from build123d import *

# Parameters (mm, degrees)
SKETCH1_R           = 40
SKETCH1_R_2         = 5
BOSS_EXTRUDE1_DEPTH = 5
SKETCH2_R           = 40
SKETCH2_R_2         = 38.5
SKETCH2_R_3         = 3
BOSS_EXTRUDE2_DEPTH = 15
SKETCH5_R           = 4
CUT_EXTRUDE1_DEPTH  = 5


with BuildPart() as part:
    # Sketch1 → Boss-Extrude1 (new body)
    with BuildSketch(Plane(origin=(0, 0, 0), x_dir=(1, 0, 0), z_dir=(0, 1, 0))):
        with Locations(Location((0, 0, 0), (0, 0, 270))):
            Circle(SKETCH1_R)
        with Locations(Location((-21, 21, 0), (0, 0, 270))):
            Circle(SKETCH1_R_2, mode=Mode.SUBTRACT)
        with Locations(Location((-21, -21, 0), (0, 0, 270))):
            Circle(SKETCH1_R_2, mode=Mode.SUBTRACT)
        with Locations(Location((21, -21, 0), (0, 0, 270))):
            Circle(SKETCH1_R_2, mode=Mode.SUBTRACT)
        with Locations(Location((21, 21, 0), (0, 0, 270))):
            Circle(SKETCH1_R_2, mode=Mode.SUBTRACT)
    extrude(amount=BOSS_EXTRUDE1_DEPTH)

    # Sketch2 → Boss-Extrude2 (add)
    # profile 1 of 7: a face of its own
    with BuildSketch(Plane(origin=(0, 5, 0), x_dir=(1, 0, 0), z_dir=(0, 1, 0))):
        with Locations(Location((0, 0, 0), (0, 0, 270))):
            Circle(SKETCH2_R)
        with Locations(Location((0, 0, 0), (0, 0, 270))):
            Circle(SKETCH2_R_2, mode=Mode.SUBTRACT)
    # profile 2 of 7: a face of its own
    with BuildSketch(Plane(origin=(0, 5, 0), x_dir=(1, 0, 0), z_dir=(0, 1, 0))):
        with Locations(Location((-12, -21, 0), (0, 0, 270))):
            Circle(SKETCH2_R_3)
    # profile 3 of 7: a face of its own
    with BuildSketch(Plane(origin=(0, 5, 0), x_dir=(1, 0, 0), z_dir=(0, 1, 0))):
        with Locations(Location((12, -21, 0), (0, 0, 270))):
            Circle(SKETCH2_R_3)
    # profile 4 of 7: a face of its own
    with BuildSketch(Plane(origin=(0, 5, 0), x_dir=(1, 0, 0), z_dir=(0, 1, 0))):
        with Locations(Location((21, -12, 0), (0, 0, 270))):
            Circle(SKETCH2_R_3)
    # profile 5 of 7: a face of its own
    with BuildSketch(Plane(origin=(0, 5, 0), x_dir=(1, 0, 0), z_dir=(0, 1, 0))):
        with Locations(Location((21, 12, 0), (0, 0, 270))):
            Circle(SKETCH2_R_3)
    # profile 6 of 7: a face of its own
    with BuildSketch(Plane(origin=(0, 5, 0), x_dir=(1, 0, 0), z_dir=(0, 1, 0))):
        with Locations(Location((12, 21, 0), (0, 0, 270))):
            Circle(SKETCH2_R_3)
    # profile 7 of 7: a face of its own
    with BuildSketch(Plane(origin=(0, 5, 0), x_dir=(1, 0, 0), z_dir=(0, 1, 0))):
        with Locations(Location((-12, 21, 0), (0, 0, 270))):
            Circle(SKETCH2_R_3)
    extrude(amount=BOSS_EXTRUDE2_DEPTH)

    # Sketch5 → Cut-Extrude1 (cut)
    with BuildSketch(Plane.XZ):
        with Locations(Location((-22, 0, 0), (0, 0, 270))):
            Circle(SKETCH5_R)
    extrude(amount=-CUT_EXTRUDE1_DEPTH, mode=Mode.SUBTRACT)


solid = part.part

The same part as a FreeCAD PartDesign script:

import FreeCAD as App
import Part
import Sketcher
from FreeCAD import Vector

doc = App.newDocument("Part")
body = doc.addObject("PartDesign::Body", "Body")

# Sketch on XZ plane
sketch1 = doc.addObject("Sketcher::SketchObject", "Sketch")
body.addObject(sketch1)
sketch1.AttachmentSupport = (doc.XZ_Plane, [""])
sketch1.MapMode = "FlatFace"
sketch1.addGeometry([
    Part.Circle(Vector(0, 0, 0), Vector(0, 0, 1), 40),  # 0
    Part.Circle(Vector(-21, -21, 0), Vector(0, 0, 1), 5),  # 1
    Part.Circle(Vector(-21, 21, 0), Vector(0, 0, 1), 5),  # 2
    Part.Circle(Vector(21, -21, 0), Vector(0, 0, 1), 5),  # 3
    Part.Circle(Vector(21, 21, 0), Vector(0, 0, 1), 5),  # 4
], False)
sketch1.addConstraint([
    Sketcher.Constraint("Coincident", 0, 3, -1, 1),
    Sketcher.Constraint("Equal", 1, 2),
    Sketcher.Constraint("Equal", 2, 3),
    Sketcher.Constraint("Equal", 3, 4),
    Sketcher.Constraint("Symmetric", 2, 3, 3, 3, -1, 1),
    Sketcher.Constraint("Symmetric", 1, 3, 4, 3, -1, 1),
    Sketcher.Constraint("Symmetric", 1, 3, 3, 3, -2),
    Sketcher.Constraint("Diameter", 0, 80.0),
    Sketcher.Constraint("Diameter", 1, 10.0),
    Sketcher.Constraint("DistanceX", 1, 3, -1, 1, 21.0),
    Sketcher.Constraint("DistanceY", 1, 3, -1, 1, 21.0),
])
pad1 = doc.addObject("PartDesign::Pad", "Pad")
body.addObject(pad1)
pad1.Profile = sketch1
pad1.Length = 5
pad1.Reversed = True

# Sketch on XZ plane
sketch2 = doc.addObject("Sketcher::SketchObject", "Sketch001")
body.addObject(sketch2)
sketch2.AttachmentSupport = (doc.XZ_Plane, [""])
sketch2.MapMode = "FlatFace"
sketch2.AttachmentOffset = App.Placement(Vector(0, 0, -5), App.Rotation())
sketch2.addGeometry([
    Part.Circle(Vector(0, 0, 0), Vector(0, 0, 1), 40),  # 0
    Part.Circle(Vector(0, 0, 0), Vector(0, 0, 1), 38.5),  # 1
    Part.Circle(Vector(-12, 21, 0), Vector(0, 0, 1), 3),  # 2
    Part.Circle(Vector(12, 21, 0), Vector(0, 0, 1), 3),  # 3
    Part.Circle(Vector(21, 12, 0), Vector(0, 0, 1), 3),  # 4
    Part.Circle(Vector(21, -12, 0), Vector(0, 0, 1), 3),  # 5
    Part.Circle(Vector(12, -21, 0), Vector(0, 0, 1), 3),  # 6
    Part.Circle(Vector(-12, -21, 0), Vector(0, 0, 1), 3),  # 7
], False)
sketch2.addConstraint([
    Sketcher.Constraint("Coincident", 0, 3, -1, 1),
    Sketcher.Constraint("Coincident", 1, 3, -1, 1),
    Sketcher.Constraint("Equal", 2, 3),
    Sketcher.Constraint("Equal", 3, 4),
    Sketcher.Constraint("Equal", 4, 5),
    Sketcher.Constraint("Equal", 5, 6),
    Sketcher.Constraint("Equal", 6, 7),
    Sketcher.Constraint("Symmetric", 2, 3, 6, 3, -1, 1),
    Sketcher.Constraint("Symmetric", 3, 3, 7, 3, -1, 1),
    Sketcher.Constraint("Symmetric", 2, 3, 3, 3, -2),
    Sketcher.Constraint("Symmetric", 4, 3, 5, 3, -1),
    Sketcher.Constraint("Diameter", 0, 80.0),
    Sketcher.Constraint("Diameter", 1, 77.0),
    Sketcher.Constraint("Diameter", 2, 6.0),
    Sketcher.Constraint("DistanceX", 2, 3, -1, 1, 12.0),
    Sketcher.Constraint("DistanceY", -1, 1, 2, 3, 21.0),
    Sketcher.Constraint("DistanceX", -1, 1, 4, 3, 21.0),
    Sketcher.Constraint("DistanceY", -1, 1, 4, 3, 12.0),
])
pad2 = doc.addObject("PartDesign::Pad", "Pad001")
body.addObject(pad2)
pad2.Profile = sketch2
pad2.Length = 15
pad2.Reversed = True

# Sketch on XZ plane
sketch3 = doc.addObject("Sketcher::SketchObject", "Sketch002")
body.addObject(sketch3)
sketch3.AttachmentSupport = (doc.XZ_Plane, [""])
sketch3.MapMode = "FlatFace"
sketch3.addGeometry(Part.Circle(Vector(-22, 0, 0), Vector(0, 0, 1), 4), False)
sketch3.addConstraint([
    Sketcher.Constraint("PointOnObject", 0, 3, -1),
    Sketcher.Constraint("Diameter", 0, 8.0),
    Sketcher.Constraint("DistanceX", 0, 3, -1, 1, 22.0),
])
pocket1 = doc.addObject("PartDesign::Pocket", "Pocket")
body.addObject(pocket1)
pocket1.Profile = sketch3
pocket1.Length = 5

doc.recompute()
